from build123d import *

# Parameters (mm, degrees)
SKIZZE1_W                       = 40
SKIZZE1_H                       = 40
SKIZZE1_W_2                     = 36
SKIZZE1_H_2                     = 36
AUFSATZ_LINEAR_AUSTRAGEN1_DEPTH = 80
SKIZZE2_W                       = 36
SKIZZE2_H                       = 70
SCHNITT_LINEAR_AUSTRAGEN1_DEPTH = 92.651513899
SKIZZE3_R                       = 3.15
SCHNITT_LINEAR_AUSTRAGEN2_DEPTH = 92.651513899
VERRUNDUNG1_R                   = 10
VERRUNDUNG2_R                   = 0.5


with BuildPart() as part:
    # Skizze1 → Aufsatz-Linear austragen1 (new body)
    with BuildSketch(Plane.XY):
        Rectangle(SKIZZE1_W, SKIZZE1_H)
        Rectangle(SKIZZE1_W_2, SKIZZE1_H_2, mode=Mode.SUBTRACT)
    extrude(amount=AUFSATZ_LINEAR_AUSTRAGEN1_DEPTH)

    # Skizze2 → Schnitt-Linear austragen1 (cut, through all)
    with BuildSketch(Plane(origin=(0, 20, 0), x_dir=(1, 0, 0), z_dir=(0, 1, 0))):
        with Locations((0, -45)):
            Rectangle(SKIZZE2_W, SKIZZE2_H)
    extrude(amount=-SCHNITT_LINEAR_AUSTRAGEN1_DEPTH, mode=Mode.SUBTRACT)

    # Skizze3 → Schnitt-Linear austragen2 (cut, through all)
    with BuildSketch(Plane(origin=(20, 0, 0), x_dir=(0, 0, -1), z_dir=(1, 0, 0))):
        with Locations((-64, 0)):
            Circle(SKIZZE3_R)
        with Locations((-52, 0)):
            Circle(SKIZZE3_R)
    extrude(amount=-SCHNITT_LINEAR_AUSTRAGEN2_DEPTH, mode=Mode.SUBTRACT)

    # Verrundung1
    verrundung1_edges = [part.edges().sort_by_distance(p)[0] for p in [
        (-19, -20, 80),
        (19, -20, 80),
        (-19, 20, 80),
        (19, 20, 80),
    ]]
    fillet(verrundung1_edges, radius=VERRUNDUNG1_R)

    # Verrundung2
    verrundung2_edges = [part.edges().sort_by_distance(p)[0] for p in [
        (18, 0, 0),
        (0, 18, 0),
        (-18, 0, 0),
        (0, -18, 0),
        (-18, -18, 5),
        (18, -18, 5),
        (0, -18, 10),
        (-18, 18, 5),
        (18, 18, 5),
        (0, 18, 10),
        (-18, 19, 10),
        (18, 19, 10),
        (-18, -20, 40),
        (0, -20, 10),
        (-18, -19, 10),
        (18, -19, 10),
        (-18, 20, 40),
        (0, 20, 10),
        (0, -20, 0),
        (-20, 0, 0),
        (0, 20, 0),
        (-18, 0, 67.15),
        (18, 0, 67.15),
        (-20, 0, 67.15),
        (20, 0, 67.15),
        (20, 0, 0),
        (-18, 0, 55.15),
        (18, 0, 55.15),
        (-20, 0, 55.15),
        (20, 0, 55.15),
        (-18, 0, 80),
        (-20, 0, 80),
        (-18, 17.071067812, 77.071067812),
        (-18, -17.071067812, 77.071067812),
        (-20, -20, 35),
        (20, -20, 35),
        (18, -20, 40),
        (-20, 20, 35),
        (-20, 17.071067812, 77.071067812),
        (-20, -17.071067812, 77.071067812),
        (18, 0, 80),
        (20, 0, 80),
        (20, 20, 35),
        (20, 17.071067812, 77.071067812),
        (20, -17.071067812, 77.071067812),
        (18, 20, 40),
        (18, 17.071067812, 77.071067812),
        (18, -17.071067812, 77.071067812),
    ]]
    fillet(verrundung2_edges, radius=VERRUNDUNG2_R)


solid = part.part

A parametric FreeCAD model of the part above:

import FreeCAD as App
import Part
import Sketcher

V = App.Vector


def edges_at(feature, points):
    """Names of the edges that pass closest to the given points."""
    edges = feature.Shape.Edges
    near = lambda p: min(range(len(edges)), key=lambda i: edges[i].distToShape(Part.Vertex(*p))[0])
    return sorted({f"Edge{near(p) + 1}" for p in points})


def add_polygon(sketch, points):
    """Adds a closed chain of lines whose ends are joined by coincident constraints."""
    first, n = sketch.GeometryCount, len(points)
    for a, b in zip(points, points[1:] + points[:1]):
        sketch.addGeometry(Part.LineSegment(App.Vector(*a, 0), App.Vector(*b, 0)), False)
    for i in range(n):
        sketch.addConstraint(Sketcher.Constraint("Coincident", first + i, 2, first + (i + 1) % n, 1))

doc = App.newDocument("Part")
body = doc.addObject("PartDesign::Body", "Body")

# Sketch on XY plane
sketch1 = body.newObject("Sketcher::SketchObject", "Sketch")
sketch1.AttachmentSupport = (doc.getObject("XY_Plane"), [""])
sketch1.MapMode = "FlatFace"
add_polygon(sketch1, [(-20, 20), (-20, -20), (20, -20), (20, 20)])  # lines 0-3
add_polygon(sketch1, [(18, -18), (-18, -18), (-18, 18), (18, 18)])  # lines 4-7
sketch1.addConstraint(Sketcher.Constraint("Vertical", 0))
sketch1.addConstraint(Sketcher.Constraint("Horizontal", 1))
sketch1.addConstraint(Sketcher.Constraint("Vertical", 2))
sketch1.addConstraint(Sketcher.Constraint("Horizontal", 3))
sketch1.addConstraint(Sketcher.Constraint("Horizontal", 4))
sketch1.addConstraint(Sketcher.Constraint("Vertical", 5))
sketch1.addConstraint(Sketcher.Constraint("Horizontal", 6))
sketch1.addConstraint(Sketcher.Constraint("Vertical", 7))
sketch1.addConstraint(Sketcher.Constraint("Symmetric", 0, 2, 2, 2, -1, 1))
sketch1.addConstraint(Sketcher.Constraint("Symmetric", 4, 2, 6, 2, -1, 1))
sketch1.addConstraint(Sketcher.Constraint("Equal", 3, 0))
sketch1.addConstraint(Sketcher.Constraint("Equal", 6, 5))
sketch1.addConstraint(Sketcher.Constraint("DistanceX", 1, 1, 1, 2, 40.0))
sketch1.addConstraint(Sketcher.Constraint("DistanceX", 4, 2, 4, 1, 36.0))
pad1 = body.newObject("PartDesign::Pad", "Pad")
pad1.Profile = sketch1
pad1.Length = 80

# Sketch on XZ plane
sketch2 = body.newObject("Sketcher::SketchObject", "Sketch001")
sketch2.AttachmentSupport = (doc.getObject("XZ_Plane"), [""])
sketch2.MapMode = "FlatFace"
sketch2.AttachmentOffset = App.Placement(V(0, 0, -20), App.Rotation())
add_polygon(sketch2, [(-18, 10), (-18, 80), (18, 80), (18, 10)])  # lines 0-3
sketch2.addConstraint(Sketcher.Constraint("Vertical", 0))
sketch2.addConstraint(Sketcher.Constraint("Horizontal", 1))
sketch2.addConstraint(Sketcher.Constraint("Vertical", 2))
sketch2.addConstraint(Sketcher.Constraint("Horizontal", 3))
sketch2.addConstraint(Sketcher.Constraint("DistanceX", 1, 1, 1, 2, 36.0))
sketch2.addConstraint(Sketcher.Constraint("DistanceY", 0, 1, 0, 2, 70.0))
sketch2.addConstraint(Sketcher.Constraint("DistanceX", 0, 2, -1, 1, 18.0))
sketch2.addConstraint(Sketcher.Constraint("DistanceY", -1, 1, 0, 2, 80.0))
pocket1 = body.newObject("PartDesign::Pocket", "Pocket")
pocket1.Profile = sketch2
pocket1.Type = "ThroughAll"
pocket1.Reversed = True

# Sketch on YZ plane
sketch3 = body.newObject("Sketcher::SketchObject", "Sketch002")
sketch3.AttachmentSupport = (doc.getObject("YZ_Plane"), [""])
sketch3.MapMode = "FlatFace"
sketch3.AttachmentOffset = App.Placement(V(0, 0, 20), App.Rotation())
sketch3.addGeometry(Part.Circle(V(0, 64, 0), V(0, 0, 1), 3.15), False)
sketch3.addGeometry(Part.Circle(V(0, 52, 0), V(0, 0, 1), 3.15), False)
sketch3.addConstraint(Sketcher.Constraint("Equal", 0, 1))
sketch3.addConstraint(Sketcher.Constraint("PointOnObject", 0, 3, -2))
sketch3.addConstraint(Sketcher.Constraint("PointOnObject", 1, 3, -2))
sketch3.addConstraint(Sketcher.Constraint("Diameter", 0, 6.3))
sketch3.addConstraint(Sketcher.Constraint("DistanceY", -1, 1, 0, 3, 64.0))
sketch3.addConstraint(Sketcher.Constraint("DistanceY", -1, 1, 1, 3, 52.0))
pocket2 = body.newObject("PartDesign::Pocket", "Pocket001")
pocket2.Profile = sketch3
pocket2.Type = "ThroughAll"
doc.recompute()

fillet = body.newObject("PartDesign::Fillet", "Fillet")
fillet.Base = (pocket2, edges_at(pocket2, [
    (-19, -20, 80),
    (19, -20, 80),
    (-19, 20, 80),
    (19, 20, 80),
]))
fillet.Radius = 10
doc.recompute()

fillet2 = body.newObject("PartDesign::Fillet", "Fillet001")
fillet2.Base = (fillet, ["Edge1"])
fillet2.UseAllEdges = True
fillet2.Radius = 0.5

doc.recompute()
